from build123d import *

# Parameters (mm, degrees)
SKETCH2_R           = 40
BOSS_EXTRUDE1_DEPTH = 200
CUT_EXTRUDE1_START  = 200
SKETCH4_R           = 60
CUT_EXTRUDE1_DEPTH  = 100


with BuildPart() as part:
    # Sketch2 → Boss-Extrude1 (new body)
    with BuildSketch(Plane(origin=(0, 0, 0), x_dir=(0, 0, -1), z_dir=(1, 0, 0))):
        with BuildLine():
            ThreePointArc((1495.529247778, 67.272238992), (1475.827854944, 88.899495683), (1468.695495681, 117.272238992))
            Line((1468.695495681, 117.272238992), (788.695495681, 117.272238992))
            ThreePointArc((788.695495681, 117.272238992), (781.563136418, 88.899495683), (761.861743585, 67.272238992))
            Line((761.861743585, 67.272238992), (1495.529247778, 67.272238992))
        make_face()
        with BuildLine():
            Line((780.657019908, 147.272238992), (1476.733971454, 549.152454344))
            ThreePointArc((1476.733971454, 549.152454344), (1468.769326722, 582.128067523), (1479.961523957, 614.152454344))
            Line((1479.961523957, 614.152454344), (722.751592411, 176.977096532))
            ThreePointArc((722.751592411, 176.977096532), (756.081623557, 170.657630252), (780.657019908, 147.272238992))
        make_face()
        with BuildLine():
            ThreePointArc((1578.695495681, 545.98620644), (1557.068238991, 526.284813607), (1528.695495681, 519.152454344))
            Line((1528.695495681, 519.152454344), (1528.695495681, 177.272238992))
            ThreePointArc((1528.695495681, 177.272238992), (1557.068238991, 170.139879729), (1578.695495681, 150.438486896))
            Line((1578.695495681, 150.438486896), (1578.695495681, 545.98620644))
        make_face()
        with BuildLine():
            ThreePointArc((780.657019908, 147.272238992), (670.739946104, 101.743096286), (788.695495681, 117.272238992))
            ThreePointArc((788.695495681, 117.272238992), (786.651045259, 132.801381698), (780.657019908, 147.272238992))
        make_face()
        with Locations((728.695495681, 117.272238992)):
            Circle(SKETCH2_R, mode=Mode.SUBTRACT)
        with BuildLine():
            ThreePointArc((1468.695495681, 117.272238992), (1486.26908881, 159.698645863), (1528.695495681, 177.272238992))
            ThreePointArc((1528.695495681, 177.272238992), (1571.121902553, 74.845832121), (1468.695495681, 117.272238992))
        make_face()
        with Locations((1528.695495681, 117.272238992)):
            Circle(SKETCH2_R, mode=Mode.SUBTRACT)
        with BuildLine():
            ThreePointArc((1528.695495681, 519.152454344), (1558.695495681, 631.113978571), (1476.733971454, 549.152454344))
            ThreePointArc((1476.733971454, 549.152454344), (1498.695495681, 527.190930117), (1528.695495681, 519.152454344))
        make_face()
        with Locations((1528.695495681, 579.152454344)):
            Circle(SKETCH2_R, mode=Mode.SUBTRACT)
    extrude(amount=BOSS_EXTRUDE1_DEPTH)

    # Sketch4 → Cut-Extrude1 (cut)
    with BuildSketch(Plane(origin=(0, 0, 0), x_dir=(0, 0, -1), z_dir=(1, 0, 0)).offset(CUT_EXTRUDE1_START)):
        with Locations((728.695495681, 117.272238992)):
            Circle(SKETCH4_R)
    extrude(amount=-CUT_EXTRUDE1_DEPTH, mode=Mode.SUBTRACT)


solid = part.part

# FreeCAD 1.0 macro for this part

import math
import FreeCAD as App
import Part
import Sketcher
from FreeCAD import Vector
Q = App.Units.Quantity

doc = App.newDocument("Part")
body = doc.addObject("PartDesign::Body", "Body")

sketch1 = body.newObject("Sketcher::SketchObject", "Sketch")
sketch1.AttachmentSupport = (doc.getObject("YZ_Plane"), [""])
sketch1.MapMode = "FlatFace"
sketch1.addGeometry([
    Part.LineSegment(Vector(67.272239, -761.861744, 0), Vector(67.272239, -1495.529248, 0)),
    Part.ArcOfCircle(Part.Circle(Vector(117.272239, -1528.695496, 0), Vector(0, 0, 1), 60), math.radians(146.44269), math.radians(303.55731)),
    Part.LineSegment(Vector(150.438487, -1578.695496, 0), Vector(545.986206, -1578.695496, 0)),
    Part.ArcOfCircle(Part.Circle(Vector(579.152454, -1528.695496, 0), Vector(0, 0, 1), 60), math.radians(-123.55731), math.radians(54.314665)),
    Part.LineSegment(Vector(614.152454, -1479.961524, 0), Vector(176.977097, -722.751592, 0)),
    Part.ArcOfCircle(Part.Circle(Vector(117.272239, -728.695496, 0), Vector(0, 0, 1), 60), math.radians(5.685335), math.radians(213.55731)),
    Part.Circle(Vector(117.272239, -728.695496, 0), Vector(0, 0, 1), 40),
    Part.Circle(Vector(117.272239, -1528.695496, 0), Vector(0, 0, 1), 40),
    Part.LineSegment(Vector(147.272239, -780.65702, 0), Vector(549.152454, -1476.733971, 0)),
    Part.ArcOfCircle(Part.Circle(Vector(579.152454, -1528.695496, 0), Vector(0, 0, 1), 60), math.radians(120), math.radians(180)),
    Part.LineSegment(Vector(519.152454, -1528.695496, 0), Vector(177.272239, -1528.695496, 0)),
    Part.ArcOfCircle(Part.Circle(Vector(117.272239, -1528.695496, 0), Vector(0, 0, 1), 60), math.radians(0), math.radians(90)),
    Part.LineSegment(Vector(117.272239, -1468.695496, 0), Vector(117.272239, -788.695496, 0)),
    Part.ArcOfCircle(Part.Circle(Vector(117.272239, -728.695496, 0), Vector(0, 0, 1), 60), math.radians(-90), math.radians(-60)),
    Part.Circle(Vector(579.152454, -1528.695496, 0), Vector(0, 0, 1), 40),
], False)
sketch1.addConstraint([
    Sketcher.Constraint("Coincident", 0, 2, 1, 1),
    Sketcher.Constraint("Coincident", 1, 2, 2, 1),
    Sketcher.Constraint("Coincident", 2, 2, 3, 1),
    Sketcher.Constraint("Coincident", 3, 2, 4, 1),
    Sketcher.Constraint("Coincident", 4, 2, 5, 1),
    Sketcher.Constraint("Coincident", 5, 2, 0, 1),
    Sketcher.Constraint("Coincident", 8, 2, 9, 1),
    Sketcher.Constraint("Coincident", 9, 2, 10, 1),
    Sketcher.Constraint("Coincident", 10, 2, 11, 1),
    Sketcher.Constraint("Coincident", 11, 2, 12, 1),
    Sketcher.Constraint("Coincident", 12, 2, 13, 1),
    Sketcher.Constraint("Coincident", 13, 2, 8, 1),
    Sketcher.Constraint("Vertical", 0),
    Sketcher.Constraint("Horizontal", 2),
    Sketcher.Constraint("Horizontal", 10),
    Sketcher.Constraint("Vertical", 12),
    Sketcher.Constraint("Coincident", 6, 3, 5, 3),
    Sketcher.Constraint("Coincident", 7, 3, 1, 3),
    Sketcher.Constraint("Coincident", 9, 3, 3, 3),
    Sketcher.Constraint("Coincident", 11, 3, 1, 3),
    Sketcher.Constraint("Coincident", 13, 3, 5, 3),
    Sketcher.Constraint("Coincident", 14, 3, 3, 3),
    Sketcher.Constraint("Equal", 1, 3),
    Sketcher.Constraint("Equal", 3, 5),
    Sketcher.Constraint("Equal", 6, 7),
    Sketcher.Constraint("Equal", 5, 9),
    Sketcher.Constraint("Equal", 9, 11),
    Sketcher.Constraint("Equal", 11, 13),
    Sketcher.Constraint("Equal", 7, 14),
    Sketcher.Constraint("Parallel", 4, 8),
    Sketcher.Constraint("Horizontal", 1, 3, 3, 3),
    Sketcher.Constraint("Horizontal", 14, 3, 9, 2),
    Sketcher.Constraint("Vertical", 1, 3, 5, 3),
    Sketcher.Constraint("Vertical", 13, 3, 11, 2),
    Sketcher.Constraint("Diameter", 6, Q("80 mm")),
    Sketcher.Constraint("Radius", 1, Q("60 mm")),
    Sketcher.Constraint("DistanceY", 12, 1, 12, 2, Q("680 mm")),
    Sketcher.Constraint("Angle", 4, Q("120 deg")),
    Sketcher.Constraint("DistanceX", 0, 2, 11, 3, Q("50 mm")),
    Sketcher.Constraint("DistanceY", 1, 2, 11, 3, Q("50 mm")),
    Sketcher.Constraint("DistanceX", 3, 3, 3, 2, Q("35 mm")),
    Sketcher.Constraint("DistanceX", 8, 2, 3, 3, Q("30 mm")),
    Sketcher.Constraint("DistanceX", 12, 2, 13, 2, Q("30 mm")),
    Sketcher.Constraint("DistanceX", -1, 1, 1, 3, Q("117.272239 mm")),
    Sketcher.Constraint("DistanceY", 8, 2, -1, 1, Q("1476.733971 mm")),
])
pad1 = body.newObject("PartDesign::Pad", "Pad")
pad1.Profile = sketch1
pad1.Length = 200

sketch2 = body.newObject("Sketcher::SketchObject", "Sketch001")
sketch2.AttachmentSupport = (doc.getObject("YZ_Plane"), [""])
sketch2.MapMode = "FlatFace"
sketch2.AttachmentOffset = App.Placement(Vector(0, 0, 200), App.Rotation())
sketch2.addGeometry(Part.Circle(Vector(117.272239, -728.695496, 0), Vector(0, 0, 1), 60), False)
sketch2.addConstraint([
    Sketcher.Constraint("Diameter", 0, Q("120 mm")),
    Sketcher.Constraint("DistanceX", -1, 1, 0, 3, Q("117.272239 mm")),
    Sketcher.Constraint("DistanceY", 0, 3, -1, 1, Q("728.695496 mm")),
])
pocket1 = body.newObject("PartDesign::Pocket", "Pocket")
pocket1.Profile = sketch2
pocket1.Length = 100

doc.recompute()
